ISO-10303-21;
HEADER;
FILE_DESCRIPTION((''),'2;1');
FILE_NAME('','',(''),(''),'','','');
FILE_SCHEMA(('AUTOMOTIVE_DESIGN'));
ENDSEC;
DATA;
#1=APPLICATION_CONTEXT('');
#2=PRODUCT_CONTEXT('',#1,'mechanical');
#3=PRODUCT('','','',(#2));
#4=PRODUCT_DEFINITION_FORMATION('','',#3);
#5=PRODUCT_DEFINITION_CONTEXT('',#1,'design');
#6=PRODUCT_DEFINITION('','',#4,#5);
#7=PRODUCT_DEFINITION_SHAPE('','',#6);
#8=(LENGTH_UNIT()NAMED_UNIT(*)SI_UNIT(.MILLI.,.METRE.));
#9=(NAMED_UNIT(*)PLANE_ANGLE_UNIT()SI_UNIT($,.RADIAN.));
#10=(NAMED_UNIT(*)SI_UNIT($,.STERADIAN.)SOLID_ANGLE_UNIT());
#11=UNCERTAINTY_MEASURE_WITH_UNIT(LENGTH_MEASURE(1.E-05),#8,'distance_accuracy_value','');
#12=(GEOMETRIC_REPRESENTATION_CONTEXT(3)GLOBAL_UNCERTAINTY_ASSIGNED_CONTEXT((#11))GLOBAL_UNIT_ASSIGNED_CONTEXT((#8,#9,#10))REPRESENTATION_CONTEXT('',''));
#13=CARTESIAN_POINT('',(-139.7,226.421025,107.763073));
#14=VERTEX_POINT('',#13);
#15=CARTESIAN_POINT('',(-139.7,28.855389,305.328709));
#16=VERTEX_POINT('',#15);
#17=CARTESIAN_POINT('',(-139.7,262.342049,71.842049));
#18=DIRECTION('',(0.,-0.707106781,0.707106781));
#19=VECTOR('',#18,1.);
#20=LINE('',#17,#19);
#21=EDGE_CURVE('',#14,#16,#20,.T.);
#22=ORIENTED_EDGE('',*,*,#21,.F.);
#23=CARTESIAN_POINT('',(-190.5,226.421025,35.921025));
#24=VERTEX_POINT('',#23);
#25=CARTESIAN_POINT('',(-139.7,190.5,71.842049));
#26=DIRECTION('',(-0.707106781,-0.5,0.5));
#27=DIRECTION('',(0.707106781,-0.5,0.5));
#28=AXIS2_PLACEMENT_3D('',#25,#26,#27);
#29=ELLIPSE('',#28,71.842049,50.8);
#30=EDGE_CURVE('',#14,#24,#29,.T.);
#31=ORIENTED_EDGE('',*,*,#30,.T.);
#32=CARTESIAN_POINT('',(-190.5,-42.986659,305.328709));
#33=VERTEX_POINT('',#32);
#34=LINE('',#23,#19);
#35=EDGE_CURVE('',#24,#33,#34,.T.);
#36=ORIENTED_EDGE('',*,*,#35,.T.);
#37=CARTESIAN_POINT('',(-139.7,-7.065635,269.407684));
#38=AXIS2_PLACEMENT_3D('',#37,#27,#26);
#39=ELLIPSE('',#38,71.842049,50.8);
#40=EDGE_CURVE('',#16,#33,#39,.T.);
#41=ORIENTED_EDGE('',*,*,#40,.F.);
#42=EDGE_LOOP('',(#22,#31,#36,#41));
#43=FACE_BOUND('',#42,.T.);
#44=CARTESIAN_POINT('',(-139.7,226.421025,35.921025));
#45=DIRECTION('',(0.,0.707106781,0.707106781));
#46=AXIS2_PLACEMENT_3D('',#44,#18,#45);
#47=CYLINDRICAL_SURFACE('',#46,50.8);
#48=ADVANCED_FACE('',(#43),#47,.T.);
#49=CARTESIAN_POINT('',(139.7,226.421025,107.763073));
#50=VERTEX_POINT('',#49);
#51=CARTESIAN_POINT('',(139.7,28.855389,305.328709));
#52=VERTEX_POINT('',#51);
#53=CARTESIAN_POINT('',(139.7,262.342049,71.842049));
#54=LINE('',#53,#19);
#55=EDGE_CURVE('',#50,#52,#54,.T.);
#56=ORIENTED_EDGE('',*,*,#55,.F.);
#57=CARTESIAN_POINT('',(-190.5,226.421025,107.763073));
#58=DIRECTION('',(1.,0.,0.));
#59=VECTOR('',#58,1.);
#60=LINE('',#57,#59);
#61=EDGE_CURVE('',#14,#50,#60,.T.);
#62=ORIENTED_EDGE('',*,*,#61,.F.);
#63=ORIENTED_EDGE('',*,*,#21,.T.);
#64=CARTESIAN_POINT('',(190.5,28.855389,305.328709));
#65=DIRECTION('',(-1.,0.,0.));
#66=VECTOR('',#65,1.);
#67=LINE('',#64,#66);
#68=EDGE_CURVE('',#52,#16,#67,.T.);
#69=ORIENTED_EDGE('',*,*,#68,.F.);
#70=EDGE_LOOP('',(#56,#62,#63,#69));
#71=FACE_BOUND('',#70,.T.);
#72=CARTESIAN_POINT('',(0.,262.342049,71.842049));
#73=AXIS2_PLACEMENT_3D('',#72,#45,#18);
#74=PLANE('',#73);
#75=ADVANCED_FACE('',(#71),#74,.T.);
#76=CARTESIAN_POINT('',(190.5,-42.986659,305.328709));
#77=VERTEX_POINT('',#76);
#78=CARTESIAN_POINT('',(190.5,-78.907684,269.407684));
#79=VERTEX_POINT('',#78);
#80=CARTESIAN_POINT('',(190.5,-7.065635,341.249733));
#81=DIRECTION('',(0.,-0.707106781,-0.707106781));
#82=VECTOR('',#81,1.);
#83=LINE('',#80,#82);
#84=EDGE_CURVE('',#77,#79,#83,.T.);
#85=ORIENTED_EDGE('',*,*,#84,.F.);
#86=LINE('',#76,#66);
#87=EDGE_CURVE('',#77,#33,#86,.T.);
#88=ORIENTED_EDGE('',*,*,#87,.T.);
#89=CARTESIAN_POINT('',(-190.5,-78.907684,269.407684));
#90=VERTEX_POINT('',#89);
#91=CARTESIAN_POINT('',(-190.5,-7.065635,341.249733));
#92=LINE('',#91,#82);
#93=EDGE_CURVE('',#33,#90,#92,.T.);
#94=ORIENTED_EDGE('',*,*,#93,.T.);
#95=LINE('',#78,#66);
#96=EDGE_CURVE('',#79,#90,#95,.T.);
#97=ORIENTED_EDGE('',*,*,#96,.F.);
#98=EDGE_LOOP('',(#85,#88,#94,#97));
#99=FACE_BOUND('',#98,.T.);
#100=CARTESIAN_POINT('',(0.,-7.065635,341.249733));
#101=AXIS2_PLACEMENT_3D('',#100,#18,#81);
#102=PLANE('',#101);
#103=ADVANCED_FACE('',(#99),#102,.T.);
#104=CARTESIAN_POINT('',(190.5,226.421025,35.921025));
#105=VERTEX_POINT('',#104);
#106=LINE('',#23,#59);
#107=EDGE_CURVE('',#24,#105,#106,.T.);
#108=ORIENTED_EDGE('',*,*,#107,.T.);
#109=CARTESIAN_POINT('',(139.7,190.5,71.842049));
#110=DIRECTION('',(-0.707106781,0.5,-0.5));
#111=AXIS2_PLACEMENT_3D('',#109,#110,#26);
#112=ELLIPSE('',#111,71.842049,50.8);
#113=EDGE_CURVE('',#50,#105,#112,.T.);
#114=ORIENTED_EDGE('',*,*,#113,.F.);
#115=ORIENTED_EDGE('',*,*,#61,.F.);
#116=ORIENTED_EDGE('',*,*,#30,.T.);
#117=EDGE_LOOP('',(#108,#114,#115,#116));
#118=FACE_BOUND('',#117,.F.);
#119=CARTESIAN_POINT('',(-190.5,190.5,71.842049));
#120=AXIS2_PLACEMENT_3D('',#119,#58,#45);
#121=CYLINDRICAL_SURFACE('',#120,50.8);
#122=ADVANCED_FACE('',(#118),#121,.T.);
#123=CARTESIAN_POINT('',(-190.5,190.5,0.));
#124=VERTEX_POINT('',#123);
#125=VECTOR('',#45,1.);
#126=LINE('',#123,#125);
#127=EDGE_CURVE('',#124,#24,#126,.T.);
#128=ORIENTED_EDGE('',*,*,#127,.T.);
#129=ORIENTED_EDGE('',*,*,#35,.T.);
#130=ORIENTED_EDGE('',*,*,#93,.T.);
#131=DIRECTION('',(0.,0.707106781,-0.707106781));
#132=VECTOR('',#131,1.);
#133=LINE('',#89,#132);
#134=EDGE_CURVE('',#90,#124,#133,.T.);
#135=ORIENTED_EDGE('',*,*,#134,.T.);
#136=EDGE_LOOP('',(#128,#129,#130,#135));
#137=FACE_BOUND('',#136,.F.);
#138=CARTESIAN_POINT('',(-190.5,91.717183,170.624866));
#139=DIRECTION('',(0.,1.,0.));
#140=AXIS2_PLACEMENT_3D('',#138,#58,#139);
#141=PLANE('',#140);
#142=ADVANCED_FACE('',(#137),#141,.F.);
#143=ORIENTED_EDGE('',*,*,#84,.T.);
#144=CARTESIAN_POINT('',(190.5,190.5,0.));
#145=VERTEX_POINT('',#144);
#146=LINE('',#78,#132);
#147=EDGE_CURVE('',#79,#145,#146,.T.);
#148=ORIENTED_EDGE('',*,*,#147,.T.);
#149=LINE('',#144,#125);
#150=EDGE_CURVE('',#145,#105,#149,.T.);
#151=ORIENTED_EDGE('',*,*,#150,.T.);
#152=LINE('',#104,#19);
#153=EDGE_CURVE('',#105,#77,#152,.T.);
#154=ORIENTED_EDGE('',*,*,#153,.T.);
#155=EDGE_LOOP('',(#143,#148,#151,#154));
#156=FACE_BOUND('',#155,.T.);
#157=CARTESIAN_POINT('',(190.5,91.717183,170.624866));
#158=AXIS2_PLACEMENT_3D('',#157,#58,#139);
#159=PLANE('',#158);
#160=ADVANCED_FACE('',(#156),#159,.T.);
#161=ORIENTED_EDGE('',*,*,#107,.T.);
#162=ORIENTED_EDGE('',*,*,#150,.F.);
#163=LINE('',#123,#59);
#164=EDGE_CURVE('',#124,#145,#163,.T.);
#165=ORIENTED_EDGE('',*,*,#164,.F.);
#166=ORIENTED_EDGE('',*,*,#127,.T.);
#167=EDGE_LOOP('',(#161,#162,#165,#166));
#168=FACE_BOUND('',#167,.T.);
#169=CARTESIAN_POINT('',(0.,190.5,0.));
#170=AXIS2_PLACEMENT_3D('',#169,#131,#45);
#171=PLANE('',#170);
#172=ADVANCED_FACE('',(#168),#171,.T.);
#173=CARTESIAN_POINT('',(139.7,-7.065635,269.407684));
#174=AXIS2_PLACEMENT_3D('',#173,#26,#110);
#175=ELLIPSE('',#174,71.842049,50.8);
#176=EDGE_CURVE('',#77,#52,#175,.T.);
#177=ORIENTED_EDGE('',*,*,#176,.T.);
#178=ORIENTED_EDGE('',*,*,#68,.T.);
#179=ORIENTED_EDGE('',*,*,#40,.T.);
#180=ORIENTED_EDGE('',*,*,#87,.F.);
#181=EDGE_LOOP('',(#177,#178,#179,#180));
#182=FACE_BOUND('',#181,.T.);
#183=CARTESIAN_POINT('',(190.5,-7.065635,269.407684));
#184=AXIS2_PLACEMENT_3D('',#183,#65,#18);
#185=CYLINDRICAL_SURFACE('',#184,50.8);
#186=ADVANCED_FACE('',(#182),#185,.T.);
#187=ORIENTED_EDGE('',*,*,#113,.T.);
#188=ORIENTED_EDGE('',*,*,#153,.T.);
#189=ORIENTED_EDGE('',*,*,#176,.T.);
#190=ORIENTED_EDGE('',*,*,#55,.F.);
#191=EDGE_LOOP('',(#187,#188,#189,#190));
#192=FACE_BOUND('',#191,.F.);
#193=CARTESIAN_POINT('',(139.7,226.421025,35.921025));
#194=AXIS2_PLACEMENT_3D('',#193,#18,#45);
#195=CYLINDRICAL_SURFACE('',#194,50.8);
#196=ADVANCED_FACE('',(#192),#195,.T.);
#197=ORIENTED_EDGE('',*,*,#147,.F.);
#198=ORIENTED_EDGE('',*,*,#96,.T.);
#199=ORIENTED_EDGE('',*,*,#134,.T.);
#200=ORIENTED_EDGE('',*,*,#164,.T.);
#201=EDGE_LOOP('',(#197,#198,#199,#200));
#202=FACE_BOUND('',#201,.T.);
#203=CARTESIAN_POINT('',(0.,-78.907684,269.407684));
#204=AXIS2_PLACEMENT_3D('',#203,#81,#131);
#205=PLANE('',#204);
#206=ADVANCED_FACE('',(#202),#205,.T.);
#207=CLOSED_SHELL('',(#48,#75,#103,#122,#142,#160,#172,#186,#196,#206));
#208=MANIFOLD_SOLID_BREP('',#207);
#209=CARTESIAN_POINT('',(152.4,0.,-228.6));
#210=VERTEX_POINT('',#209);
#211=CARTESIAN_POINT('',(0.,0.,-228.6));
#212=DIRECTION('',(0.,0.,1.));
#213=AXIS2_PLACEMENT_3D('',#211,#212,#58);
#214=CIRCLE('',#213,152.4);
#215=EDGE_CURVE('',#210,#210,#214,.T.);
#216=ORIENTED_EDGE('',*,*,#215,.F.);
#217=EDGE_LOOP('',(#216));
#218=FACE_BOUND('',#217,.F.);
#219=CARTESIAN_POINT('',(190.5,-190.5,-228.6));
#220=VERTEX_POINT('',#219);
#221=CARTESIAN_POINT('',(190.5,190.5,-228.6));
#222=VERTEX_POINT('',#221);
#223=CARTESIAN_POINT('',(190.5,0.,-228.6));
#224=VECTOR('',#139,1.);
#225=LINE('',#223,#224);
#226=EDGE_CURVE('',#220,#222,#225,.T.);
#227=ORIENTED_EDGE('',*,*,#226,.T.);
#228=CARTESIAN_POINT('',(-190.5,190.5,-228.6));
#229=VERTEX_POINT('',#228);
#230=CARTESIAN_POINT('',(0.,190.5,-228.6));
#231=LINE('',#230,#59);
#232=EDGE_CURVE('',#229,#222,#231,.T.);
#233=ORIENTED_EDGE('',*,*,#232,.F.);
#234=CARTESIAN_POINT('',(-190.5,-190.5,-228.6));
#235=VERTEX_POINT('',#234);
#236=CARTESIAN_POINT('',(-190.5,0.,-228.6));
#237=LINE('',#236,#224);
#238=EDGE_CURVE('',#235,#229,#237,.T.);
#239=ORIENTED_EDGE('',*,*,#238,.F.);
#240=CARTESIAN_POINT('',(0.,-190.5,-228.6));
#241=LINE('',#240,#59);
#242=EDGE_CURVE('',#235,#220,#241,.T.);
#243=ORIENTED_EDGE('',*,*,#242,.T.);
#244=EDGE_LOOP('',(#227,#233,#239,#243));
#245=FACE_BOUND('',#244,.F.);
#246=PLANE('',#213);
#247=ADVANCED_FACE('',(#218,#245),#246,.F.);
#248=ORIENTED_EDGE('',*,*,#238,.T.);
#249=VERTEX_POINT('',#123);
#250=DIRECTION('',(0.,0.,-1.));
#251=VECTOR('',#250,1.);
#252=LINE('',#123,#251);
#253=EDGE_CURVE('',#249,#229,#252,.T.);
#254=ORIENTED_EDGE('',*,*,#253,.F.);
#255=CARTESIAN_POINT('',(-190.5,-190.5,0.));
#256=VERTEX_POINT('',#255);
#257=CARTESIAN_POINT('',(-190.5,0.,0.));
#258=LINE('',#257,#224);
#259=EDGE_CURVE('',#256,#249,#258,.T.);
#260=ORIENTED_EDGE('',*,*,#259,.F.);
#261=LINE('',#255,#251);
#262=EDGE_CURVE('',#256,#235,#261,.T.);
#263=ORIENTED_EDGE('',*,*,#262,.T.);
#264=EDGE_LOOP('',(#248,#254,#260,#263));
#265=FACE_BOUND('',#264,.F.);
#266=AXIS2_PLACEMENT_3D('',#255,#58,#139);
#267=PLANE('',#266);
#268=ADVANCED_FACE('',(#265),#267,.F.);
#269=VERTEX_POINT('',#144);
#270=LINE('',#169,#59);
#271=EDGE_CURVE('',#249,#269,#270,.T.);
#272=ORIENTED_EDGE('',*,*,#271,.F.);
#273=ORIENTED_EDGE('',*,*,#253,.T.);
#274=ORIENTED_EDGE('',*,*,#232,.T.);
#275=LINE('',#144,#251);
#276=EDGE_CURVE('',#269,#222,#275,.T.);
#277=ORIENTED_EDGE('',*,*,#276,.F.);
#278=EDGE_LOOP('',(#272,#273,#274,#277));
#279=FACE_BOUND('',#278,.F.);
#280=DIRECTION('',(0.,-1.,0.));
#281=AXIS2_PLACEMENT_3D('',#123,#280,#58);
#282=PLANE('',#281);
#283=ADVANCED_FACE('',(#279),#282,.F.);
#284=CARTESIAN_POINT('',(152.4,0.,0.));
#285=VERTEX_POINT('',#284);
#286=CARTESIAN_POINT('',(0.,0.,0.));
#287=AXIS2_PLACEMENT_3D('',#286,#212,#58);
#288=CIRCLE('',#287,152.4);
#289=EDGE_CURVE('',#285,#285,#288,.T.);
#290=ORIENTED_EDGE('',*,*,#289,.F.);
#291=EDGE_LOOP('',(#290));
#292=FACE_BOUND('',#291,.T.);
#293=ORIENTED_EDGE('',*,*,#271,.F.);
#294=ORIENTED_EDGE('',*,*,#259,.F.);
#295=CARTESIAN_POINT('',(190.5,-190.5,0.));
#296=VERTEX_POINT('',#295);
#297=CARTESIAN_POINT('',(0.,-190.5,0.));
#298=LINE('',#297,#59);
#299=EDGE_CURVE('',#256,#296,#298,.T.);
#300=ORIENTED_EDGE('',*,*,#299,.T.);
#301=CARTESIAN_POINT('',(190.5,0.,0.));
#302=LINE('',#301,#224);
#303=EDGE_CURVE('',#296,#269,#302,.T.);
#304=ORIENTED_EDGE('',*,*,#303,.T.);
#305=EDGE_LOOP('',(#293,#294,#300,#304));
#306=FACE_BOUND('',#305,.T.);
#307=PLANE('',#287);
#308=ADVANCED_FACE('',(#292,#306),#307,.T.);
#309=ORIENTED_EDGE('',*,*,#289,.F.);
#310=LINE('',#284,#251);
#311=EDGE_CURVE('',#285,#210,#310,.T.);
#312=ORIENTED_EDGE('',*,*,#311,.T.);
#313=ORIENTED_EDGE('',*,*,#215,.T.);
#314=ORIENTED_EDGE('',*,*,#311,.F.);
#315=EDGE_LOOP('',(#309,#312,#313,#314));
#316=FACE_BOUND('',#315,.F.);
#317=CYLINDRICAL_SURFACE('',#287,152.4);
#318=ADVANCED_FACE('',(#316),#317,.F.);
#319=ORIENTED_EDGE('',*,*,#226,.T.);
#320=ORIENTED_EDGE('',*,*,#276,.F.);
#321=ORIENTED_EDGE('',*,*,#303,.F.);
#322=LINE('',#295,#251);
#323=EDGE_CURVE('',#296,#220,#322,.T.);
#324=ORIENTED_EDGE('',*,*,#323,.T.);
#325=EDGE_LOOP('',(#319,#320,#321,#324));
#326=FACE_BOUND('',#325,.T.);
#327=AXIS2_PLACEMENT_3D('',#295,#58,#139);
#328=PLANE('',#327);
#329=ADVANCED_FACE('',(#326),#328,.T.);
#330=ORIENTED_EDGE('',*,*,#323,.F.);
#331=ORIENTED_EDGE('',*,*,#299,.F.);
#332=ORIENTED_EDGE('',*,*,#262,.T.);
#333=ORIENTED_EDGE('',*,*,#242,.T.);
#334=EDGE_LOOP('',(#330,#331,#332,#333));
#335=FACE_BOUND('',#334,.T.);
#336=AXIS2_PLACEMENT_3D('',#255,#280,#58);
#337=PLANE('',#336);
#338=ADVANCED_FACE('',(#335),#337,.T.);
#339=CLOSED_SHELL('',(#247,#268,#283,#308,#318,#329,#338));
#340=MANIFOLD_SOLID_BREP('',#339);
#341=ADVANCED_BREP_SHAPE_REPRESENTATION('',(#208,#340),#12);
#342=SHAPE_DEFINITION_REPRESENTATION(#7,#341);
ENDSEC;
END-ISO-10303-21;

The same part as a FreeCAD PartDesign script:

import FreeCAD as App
import Part
import Sketcher

V = App.Vector
Q = App.Units.Quantity


def edges_at(feature, points):
    """Names of the edges that pass closest to the given points."""
    edges = feature.Shape.Edges
    near = lambda p: min(range(len(edges)), key=lambda i: edges[i].distToShape(Part.Vertex(*p))[0])
    return sorted({f"Edge{near(p) + 1}" for p in points})

doc = App.newDocument("Part")
params = doc.addObject("Spreadsheet::Sheet", "Params")
for row, (alias, value) in enumerate([
    ("sketch1_width", "15 in"),
    ("pad1_length", "9 in"),
    ("sketch2_diameter", "12 in"),
    ("sketch3_length", "15 in"),
    ("sketch3_length2", "4 in"),
    ("pad2_length", "15 in"),
    ("fillet_radius", "2 in"),
], start=1):
    params.set(f"A{row}", alias)
    params.set(f"B{row}", "=" + value)
    params.setAlias(f"B{row}", alias)

body = doc.addObject("PartDesign::Body", "Body")

# Sketch on XY plane
sketch1 = body.newObject("Sketcher::SketchObject", "Sketch")
sketch1.AttachmentSupport = (doc.getObject("XY_Plane"), [""])
sketch1.MapMode = "FlatFace"
sketch1.addGeometry(Part.LineSegment(V(-190, 190, 0), V(-190, -190, 0)), False)
sketch1.addGeometry(Part.LineSegment(V(-190, -190, 0), V(190, -190, 0)), False)
sketch1.addGeometry(Part.LineSegment(V(190, -190, 0), V(190, 190, 0)), False)
sketch1.addGeometry(Part.LineSegment(V(190, 190, 0), V(-190, 190, 0)), False)
sketch1.addConstraint(Sketcher.Constraint("Coincident", 0, 2, 1, 1))
sketch1.addConstraint(Sketcher.Constraint("Coincident", 1, 2, 2, 1))
sketch1.addConstraint(Sketcher.Constraint("Coincident", 2, 2, 3, 1))
sketch1.addConstraint(Sketcher.Constraint("Coincident", 3, 2, 0, 1))
sketch1.addConstraint(Sketcher.Constraint("Vertical", 0))
sketch1.addConstraint(Sketcher.Constraint("Horizontal", 1))
sketch1.addConstraint(Sketcher.Constraint("Vertical", 2))
sketch1.addConstraint(Sketcher.Constraint("Horizontal", 3))
sketch1.addConstraint(Sketcher.Constraint("Symmetric", 0, 2, 2, 2, -1, 1))
sketch1.addConstraint(Sketcher.Constraint("Equal", 3, 0))
sketch1.addConstraint(Sketcher.Constraint("DistanceX", 1, 1, 1, 2, Q("15 in")))
sketch1.setExpression("Constraints[10]", "Params.sketch1_width")
pad1 = body.newObject("PartDesign::Pad", "Pad")
pad1.Profile = sketch1
pad1.setExpression("Length", "Params.pad1_length")
pad1.Reversed = True

# Sketch on XY plane
sketch2 = body.newObject("Sketcher::SketchObject", "Sketch001")
sketch2.AttachmentSupport = (doc.getObject("XY_Plane"), [""])
sketch2.MapMode = "FlatFace"
sketch2.addGeometry(Part.Circle(V(0, 0, 0), V(0, 0, 1), 152), False)
sketch2.addConstraint(Sketcher.Constraint("Coincident", 0, 3, -1, 1))
sketch2.addConstraint(Sketcher.Constraint("Diameter", 0, Q("12 in")))
sketch2.setExpression("Constraints[1]", "Params.sketch2_diameter")
pocket1 = body.newObject("PartDesign::Pocket", "Pocket")
pocket1.Profile = sketch2
pocket1.Type = "ThroughAll"
body2 = doc.addObject("PartDesign::Body", "Body001")

# Sketch on YZ plane
sketch3 = body2.newObject("Sketcher::SketchObject", "Sketch002")
sketch3.AttachmentSupport = (doc.getObject("YZ_Plane001"), [""])
sketch3.MapMode = "FlatFace"
sketch3.addGeometry(Part.LineSegment(V(-79, 269, 0), V(190, 0, 0)), False)
sketch3.addGeometry(Part.LineSegment(V(190, 0, 0), V(262, 72, 0)), False)
sketch3.addGeometry(Part.LineSegment(V(262, 72, 0), V(-7, 341, 0)), False)
sketch3.addGeometry(Part.LineSegment(V(-7, 341, 0), V(-79, 269, 0)), False)
sketch3.addConstraint(Sketcher.Constraint("Coincident", 0, 2, 1, 1))
sketch3.addConstraint(Sketcher.Constraint("Coincident", 1, 2, 2, 1))
sketch3.addConstraint(Sketcher.Constraint("Coincident", 2, 2, 3, 1))
sketch3.addConstraint(Sketcher.Constraint("Coincident", 3, 2, 0, 1))
sketch3.addConstraint(Sketcher.Constraint("PointOnObject", 0, 2, -1))
sketch3.addConstraint(Sketcher.Constraint("Perpendicular", 0, 1))
sketch3.addConstraint(Sketcher.Constraint("Perpendicular", 1, 2))
sketch3.addConstraint(Sketcher.Constraint("Perpendicular", 2, 3))
sketch3.addConstraint(Sketcher.Constraint("Distance", 0, Q("15 in")))
sketch3.addConstraint(Sketcher.Constraint("Distance", 1, Q("4 in")))
sketch3.addConstraint(Sketcher.Constraint("Angle", 0, Q("-45 deg")))
sketch3.addConstraint(Sketcher.Constraint("DistanceX", -1, 1, 0, 2, Q("7.5 in")))
sketch3.setExpression("Constraints[8]", "Params.sketch3_length")
sketch3.setExpression("Constraints[9]", "Params.sketch3_length2")
pad2 = body2.newObject("PartDesign::Pad", "Pad001")
pad2.Profile = sketch3
pad2.setExpression("Length", "Params.pad2_length")
pad2.Midplane = True
doc.recompute()

fillet = body2.newObject("PartDesign::Fillet", "Fillet")
fillet.Base = (pad2, edges_at(pad2, [
    (-190.5, 127.638, 206.546),
    (0, -7.066, 341.25),
    (190.5, 127.638, 206.546),
    (0, 262.342, 71.842),
]))
fillet.setExpression("Radius", "Params.fillet_radius")

doc.recompute()
